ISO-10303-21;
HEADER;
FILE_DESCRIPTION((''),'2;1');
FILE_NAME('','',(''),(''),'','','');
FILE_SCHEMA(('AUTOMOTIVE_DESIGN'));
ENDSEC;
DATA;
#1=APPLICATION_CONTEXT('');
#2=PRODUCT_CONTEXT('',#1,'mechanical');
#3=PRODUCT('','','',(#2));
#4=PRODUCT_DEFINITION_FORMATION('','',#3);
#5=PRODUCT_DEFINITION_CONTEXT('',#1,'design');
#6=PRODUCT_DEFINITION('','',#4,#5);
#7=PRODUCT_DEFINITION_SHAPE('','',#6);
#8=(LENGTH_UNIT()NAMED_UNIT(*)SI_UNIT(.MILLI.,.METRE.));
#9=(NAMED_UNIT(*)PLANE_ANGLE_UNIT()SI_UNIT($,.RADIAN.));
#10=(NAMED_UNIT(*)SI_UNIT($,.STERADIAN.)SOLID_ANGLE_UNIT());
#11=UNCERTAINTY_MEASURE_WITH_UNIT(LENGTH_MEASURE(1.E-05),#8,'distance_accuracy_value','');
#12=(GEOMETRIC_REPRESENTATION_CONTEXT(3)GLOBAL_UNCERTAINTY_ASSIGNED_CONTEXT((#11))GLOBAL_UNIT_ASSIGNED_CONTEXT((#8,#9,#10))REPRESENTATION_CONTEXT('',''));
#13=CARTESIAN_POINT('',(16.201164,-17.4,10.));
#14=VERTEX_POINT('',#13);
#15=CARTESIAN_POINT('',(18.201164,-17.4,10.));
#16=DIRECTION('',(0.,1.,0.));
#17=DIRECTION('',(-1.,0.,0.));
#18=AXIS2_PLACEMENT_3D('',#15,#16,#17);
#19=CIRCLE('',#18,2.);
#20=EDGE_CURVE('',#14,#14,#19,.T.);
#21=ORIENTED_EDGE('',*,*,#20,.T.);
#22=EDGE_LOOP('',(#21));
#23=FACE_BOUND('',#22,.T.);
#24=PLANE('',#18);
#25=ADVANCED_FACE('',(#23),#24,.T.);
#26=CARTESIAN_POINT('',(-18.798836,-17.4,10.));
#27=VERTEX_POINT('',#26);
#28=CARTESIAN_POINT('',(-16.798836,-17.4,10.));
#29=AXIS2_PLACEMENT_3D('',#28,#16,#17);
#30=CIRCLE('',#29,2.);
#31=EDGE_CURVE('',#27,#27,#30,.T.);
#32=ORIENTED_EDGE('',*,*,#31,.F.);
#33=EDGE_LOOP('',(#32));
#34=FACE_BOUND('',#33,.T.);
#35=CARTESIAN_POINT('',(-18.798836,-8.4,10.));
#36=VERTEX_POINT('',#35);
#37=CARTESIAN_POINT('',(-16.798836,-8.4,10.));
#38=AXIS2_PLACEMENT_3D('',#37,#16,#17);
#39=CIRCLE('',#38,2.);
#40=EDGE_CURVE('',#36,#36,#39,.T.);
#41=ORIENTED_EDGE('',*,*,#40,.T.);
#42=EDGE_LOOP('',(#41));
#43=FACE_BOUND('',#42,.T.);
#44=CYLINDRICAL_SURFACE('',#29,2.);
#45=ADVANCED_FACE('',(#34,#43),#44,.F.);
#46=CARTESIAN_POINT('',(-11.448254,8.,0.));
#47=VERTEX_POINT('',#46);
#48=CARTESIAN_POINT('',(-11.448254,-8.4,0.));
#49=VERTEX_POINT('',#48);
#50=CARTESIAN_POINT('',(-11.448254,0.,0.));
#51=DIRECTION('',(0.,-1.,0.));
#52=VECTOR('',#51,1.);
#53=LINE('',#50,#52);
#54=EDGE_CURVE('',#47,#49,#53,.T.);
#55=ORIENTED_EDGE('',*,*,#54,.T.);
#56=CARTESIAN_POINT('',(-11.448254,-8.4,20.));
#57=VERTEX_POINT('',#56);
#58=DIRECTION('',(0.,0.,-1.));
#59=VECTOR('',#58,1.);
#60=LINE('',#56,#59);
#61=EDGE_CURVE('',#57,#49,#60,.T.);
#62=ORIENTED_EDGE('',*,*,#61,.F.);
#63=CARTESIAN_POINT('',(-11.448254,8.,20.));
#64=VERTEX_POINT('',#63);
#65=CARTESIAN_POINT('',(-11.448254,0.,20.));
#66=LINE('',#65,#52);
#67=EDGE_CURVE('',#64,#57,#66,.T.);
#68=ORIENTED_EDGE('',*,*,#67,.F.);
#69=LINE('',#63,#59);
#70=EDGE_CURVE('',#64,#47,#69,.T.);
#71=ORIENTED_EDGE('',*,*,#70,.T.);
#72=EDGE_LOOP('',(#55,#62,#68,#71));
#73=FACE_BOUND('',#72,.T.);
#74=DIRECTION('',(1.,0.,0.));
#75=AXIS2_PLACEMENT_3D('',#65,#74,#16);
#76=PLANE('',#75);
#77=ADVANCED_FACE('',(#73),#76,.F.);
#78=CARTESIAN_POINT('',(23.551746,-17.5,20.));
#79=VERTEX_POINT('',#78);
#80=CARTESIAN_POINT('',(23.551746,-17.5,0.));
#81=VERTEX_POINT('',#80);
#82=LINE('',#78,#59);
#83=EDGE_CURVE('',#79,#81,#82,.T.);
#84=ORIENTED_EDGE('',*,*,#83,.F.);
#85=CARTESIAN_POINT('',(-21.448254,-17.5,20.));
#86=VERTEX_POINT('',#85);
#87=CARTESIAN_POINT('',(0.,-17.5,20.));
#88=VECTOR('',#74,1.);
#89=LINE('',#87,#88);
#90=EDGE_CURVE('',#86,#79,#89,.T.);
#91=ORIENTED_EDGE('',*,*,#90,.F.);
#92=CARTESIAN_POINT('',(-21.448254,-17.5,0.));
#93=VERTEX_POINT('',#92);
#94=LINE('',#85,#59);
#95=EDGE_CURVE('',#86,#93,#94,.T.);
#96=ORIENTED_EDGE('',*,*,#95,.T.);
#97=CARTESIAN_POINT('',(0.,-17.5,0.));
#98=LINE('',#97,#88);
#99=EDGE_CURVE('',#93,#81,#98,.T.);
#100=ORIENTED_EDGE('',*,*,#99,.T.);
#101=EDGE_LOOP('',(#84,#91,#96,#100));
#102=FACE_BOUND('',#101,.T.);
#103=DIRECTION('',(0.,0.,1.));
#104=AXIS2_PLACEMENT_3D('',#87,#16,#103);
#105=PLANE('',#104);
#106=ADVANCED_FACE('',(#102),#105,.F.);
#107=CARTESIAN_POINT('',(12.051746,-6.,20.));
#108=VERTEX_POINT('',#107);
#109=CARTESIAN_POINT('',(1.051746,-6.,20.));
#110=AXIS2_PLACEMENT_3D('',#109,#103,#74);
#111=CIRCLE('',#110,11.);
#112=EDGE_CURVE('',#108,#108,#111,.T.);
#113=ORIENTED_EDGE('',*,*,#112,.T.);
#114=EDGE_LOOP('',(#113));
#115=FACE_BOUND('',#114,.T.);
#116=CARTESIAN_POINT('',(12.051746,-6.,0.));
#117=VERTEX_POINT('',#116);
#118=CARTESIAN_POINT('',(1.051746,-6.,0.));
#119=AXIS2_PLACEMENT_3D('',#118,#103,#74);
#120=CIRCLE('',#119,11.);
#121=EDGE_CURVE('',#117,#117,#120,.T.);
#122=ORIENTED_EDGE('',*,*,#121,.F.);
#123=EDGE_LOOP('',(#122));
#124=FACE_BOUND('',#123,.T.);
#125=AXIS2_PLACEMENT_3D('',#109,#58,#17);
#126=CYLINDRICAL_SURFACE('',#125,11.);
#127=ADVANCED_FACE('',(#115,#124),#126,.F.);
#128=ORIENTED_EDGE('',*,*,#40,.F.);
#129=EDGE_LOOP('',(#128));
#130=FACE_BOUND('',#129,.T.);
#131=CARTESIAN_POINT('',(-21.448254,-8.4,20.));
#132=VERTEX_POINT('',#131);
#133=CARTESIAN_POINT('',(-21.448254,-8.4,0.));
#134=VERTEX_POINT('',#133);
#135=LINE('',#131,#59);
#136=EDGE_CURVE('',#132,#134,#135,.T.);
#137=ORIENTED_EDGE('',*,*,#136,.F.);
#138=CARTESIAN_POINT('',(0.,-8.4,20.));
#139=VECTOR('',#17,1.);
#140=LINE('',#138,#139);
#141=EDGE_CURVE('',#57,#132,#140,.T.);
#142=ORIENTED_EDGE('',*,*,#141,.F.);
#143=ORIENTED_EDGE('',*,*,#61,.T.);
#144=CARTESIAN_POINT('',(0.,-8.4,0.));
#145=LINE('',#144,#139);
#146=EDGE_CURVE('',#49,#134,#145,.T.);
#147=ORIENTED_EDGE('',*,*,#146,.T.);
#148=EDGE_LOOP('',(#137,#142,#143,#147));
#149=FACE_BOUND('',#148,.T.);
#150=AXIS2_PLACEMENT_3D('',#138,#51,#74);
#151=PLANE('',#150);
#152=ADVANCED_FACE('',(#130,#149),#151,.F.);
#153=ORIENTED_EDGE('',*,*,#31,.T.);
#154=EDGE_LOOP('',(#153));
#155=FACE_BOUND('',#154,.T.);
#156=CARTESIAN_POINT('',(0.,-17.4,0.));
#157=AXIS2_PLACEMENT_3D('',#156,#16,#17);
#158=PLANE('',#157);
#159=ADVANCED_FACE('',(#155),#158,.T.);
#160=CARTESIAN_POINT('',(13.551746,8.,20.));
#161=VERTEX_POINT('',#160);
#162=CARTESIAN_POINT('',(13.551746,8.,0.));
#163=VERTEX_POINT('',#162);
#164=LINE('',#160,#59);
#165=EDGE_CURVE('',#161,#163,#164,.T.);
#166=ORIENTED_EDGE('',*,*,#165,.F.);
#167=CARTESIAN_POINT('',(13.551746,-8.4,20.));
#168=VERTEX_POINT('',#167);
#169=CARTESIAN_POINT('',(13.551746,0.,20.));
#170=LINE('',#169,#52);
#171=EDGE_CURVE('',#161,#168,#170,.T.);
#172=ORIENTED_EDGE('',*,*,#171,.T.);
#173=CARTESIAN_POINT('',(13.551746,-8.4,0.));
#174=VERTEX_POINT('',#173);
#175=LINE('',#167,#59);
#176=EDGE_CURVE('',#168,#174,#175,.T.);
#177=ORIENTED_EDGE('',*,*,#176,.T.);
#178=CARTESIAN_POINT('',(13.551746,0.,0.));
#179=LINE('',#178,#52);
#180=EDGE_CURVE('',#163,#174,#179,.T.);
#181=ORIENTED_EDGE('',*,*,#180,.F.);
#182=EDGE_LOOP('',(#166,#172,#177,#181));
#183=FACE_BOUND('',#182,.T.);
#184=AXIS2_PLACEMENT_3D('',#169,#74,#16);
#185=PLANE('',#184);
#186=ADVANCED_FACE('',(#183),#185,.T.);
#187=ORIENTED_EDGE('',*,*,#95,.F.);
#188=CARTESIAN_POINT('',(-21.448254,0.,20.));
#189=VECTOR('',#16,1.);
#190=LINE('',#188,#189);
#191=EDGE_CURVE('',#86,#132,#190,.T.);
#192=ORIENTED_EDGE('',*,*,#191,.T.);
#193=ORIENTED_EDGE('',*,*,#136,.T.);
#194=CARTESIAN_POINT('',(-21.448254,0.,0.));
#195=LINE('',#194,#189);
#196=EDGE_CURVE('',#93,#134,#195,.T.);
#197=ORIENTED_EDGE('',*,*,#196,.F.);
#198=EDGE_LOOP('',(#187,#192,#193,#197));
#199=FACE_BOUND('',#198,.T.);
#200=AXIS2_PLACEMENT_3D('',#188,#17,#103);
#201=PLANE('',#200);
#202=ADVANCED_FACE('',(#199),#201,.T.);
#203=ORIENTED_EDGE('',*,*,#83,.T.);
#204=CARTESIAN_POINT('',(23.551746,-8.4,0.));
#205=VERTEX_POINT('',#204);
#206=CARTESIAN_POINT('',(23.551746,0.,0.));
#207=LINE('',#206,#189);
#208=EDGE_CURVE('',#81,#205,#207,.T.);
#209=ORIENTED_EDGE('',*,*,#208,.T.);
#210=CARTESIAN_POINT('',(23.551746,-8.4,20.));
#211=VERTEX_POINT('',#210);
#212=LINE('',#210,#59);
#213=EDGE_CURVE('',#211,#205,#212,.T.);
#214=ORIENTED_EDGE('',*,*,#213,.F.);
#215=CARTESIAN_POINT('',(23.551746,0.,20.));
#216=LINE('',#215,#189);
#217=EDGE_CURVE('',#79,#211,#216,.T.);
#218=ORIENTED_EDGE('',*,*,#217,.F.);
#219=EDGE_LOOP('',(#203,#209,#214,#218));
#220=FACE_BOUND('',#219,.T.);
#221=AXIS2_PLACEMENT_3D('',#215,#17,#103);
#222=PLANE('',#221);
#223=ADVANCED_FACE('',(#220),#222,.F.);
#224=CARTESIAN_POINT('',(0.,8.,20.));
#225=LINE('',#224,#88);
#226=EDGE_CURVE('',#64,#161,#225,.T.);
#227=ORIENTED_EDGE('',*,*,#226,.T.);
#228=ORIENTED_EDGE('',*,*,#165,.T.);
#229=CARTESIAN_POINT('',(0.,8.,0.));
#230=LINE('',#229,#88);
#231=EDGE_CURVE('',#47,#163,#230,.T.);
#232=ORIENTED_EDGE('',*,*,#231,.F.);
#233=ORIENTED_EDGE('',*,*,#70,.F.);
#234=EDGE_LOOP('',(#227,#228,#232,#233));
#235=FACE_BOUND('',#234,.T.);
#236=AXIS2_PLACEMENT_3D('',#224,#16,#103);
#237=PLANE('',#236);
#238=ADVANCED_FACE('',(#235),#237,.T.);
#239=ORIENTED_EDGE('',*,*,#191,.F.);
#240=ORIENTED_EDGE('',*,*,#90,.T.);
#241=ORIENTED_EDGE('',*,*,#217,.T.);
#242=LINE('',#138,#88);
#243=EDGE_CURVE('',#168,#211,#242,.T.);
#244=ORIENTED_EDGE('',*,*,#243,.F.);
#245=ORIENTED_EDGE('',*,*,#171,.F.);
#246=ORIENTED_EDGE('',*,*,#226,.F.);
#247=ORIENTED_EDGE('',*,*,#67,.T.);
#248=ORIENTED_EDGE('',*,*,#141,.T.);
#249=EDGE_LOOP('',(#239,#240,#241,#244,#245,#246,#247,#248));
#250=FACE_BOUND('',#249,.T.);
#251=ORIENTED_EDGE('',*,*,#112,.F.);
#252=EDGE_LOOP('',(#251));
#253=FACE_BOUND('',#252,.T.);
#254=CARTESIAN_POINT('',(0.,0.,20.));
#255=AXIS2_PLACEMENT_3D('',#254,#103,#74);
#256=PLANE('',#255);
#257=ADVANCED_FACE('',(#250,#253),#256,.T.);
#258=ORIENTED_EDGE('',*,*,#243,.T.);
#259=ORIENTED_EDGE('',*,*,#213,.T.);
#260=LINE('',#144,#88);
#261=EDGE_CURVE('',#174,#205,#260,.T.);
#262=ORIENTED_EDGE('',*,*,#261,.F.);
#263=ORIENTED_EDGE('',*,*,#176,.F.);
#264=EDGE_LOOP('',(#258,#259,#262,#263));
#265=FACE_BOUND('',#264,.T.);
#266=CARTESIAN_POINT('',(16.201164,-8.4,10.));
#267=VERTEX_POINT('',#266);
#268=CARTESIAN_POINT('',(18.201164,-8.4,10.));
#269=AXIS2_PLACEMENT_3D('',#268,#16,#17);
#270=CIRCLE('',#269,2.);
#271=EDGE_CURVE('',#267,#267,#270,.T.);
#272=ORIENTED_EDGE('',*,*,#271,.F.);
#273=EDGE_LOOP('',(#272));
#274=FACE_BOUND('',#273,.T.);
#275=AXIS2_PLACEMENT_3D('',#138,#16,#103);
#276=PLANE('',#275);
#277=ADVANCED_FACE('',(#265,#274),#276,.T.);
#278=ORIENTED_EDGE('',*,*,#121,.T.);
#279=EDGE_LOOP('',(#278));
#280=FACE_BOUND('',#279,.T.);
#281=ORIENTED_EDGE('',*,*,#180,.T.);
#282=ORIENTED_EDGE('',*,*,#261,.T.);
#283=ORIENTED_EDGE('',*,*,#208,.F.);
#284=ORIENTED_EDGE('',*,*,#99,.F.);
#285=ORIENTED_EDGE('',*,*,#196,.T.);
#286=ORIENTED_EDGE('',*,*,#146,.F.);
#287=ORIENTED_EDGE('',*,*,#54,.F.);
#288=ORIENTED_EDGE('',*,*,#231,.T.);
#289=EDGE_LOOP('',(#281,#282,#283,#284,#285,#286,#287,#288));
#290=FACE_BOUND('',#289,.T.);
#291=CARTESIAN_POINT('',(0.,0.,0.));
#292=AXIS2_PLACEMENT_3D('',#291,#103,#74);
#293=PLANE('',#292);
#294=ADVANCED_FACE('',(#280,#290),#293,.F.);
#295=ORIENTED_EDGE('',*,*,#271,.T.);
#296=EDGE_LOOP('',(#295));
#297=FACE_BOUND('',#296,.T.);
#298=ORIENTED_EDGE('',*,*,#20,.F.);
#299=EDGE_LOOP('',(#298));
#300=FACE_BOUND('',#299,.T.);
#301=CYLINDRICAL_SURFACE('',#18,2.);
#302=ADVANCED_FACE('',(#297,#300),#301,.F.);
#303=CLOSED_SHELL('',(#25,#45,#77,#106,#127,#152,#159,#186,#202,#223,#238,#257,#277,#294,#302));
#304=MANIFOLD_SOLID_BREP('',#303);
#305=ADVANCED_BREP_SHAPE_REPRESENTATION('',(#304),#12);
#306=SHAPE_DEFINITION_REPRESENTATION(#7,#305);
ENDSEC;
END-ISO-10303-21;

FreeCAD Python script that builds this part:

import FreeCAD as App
import Part
import Sketcher
from FreeCAD import Vector
Q = App.Units.Quantity

doc = App.newDocument("Part")
params = doc.addObject("Spreadsheet::Sheet", "Params")
for row, (alias, value) in enumerate([
    ("sketch1_diameter", "22 mm"),
    ("sketch1_width", "10 mm"),
    ("sketch1_width2", "45 mm"),
    ("sketch1_height", "16.4 mm"),
    ("sketch1_height2", "9.1 mm"),
    ("pad1_length", "20 mm"),
    ("sketch2_diameter", "4 mm"),
    ("pocket1_length", "9 mm"),
], start=1):
    params.set(f"A{row}", alias)
    params.set(f"B{row}", "=" + value)
    params.setAlias(f"B{row}", alias)

body = doc.addObject("PartDesign::Body", "Body")

# Sketch on XY plane
sketch1 = doc.addObject("Sketcher::SketchObject", "Sketch")
body.addObject(sketch1)
sketch1.AttachmentSupport = (doc.XY_Plane, [""])
sketch1.MapMode = "FlatFace"
sketch1.addGeometry(Part.LineSegment(Vector(-11.448254, 8, 0), Vector(-11.448254, -8.4, 0)), False)
sketch1.addGeometry(Part.LineSegment(Vector(-11.448254, -8.4, 0), Vector(-21.448254, -8.4, 0)), False)
sketch1.addGeometry(Part.LineSegment(Vector(-21.448254, -8.4, 0), Vector(-21.448254, -17.5, 0)), False)
sketch1.addGeometry(Part.LineSegment(Vector(-21.448254, -17.5, 0), Vector(23.551746, -17.5, 0)), False)
sketch1.addGeometry(Part.LineSegment(Vector(23.551746, -17.5, 0), Vector(23.551746, -8.4, 0)), False)
sketch1.addGeometry(Part.LineSegment(Vector(23.551746, -8.4, 0), Vector(13.551746, -8.4, 0)), False)
sketch1.addGeometry(Part.LineSegment(Vector(13.551746, -8.4, 0), Vector(13.551746, 8, 0)), False)
sketch1.addGeometry(Part.LineSegment(Vector(13.551746, 8, 0), Vector(-11.448254, 8, 0)), False)
sketch1.addGeometry(Part.Circle(Vector(1.051746, -6, 0), Vector(0, 0, 1), 11), False)
sketch1.addConstraint(Sketcher.Constraint("Coincident", 0, 2, 1, 1))
sketch1.addConstraint(Sketcher.Constraint("Coincident", 1, 2, 2, 1))
sketch1.addConstraint(Sketcher.Constraint("Coincident", 2, 2, 3, 1))
sketch1.addConstraint(Sketcher.Constraint("Coincident", 3, 2, 4, 1))
sketch1.addConstraint(Sketcher.Constraint("Coincident", 4, 2, 5, 1))
sketch1.addConstraint(Sketcher.Constraint("Coincident", 5, 2, 6, 1))
sketch1.addConstraint(Sketcher.Constraint("Coincident", 6, 2, 7, 1))
sketch1.addConstraint(Sketcher.Constraint("Coincident", 7, 2, 0, 1))
sketch1.addConstraint(Sketcher.Constraint("Vertical", 0))
sketch1.addConstraint(Sketcher.Constraint("Horizontal", 1))
sketch1.addConstraint(Sketcher.Constraint("Vertical", 2))
sketch1.addConstraint(Sketcher.Constraint("Horizontal", 3))
sketch1.addConstraint(Sketcher.Constraint("Vertical", 4))
sketch1.addConstraint(Sketcher.Constraint("Horizontal", 5))
sketch1.addConstraint(Sketcher.Constraint("Vertical", 6))
sketch1.addConstraint(Sketcher.Constraint("Horizontal", 7))
sketch1.addConstraint(Sketcher.Constraint("Horizontal", 1, 2, 4, 2))
sketch1.addConstraint(Sketcher.Constraint("Equal", 1, 5))
sketch1.addConstraint(Sketcher.Constraint("Diameter", 8, Q("22 mm")))
sketch1.addConstraint(Sketcher.Constraint("DistanceX", 1, 2, 1, 1, Q("10 mm")))
sketch1.addConstraint(Sketcher.Constraint("DistanceX", 3, 1, 3, 2, Q("45 mm")))
sketch1.addConstraint(Sketcher.Constraint("DistanceY", 0, 2, 0, 1, Q("16.4 mm")))
sketch1.addConstraint(Sketcher.Constraint("DistanceY", 2, 2, 2, 1, Q("9.1 mm")))
sketch1.addConstraint(Sketcher.Constraint("DistanceY", 8, 3, -1, 1, Q("6 mm")))
sketch1.addConstraint(Sketcher.Constraint("DistanceY", -1, 1, 6, 2, Q("8 mm")))
sketch1.addConstraint(Sketcher.Constraint("DistanceX", 0, 2, 8, 3, Q("12.5 mm")))
sketch1.addConstraint(Sketcher.Constraint("DistanceX", -1, 1, 8, 3, Q("1.051746 mm")))
sketch1.setExpression("Constraints[18]", "Params.sketch1_diameter")
sketch1.setExpression("Constraints[19]", "Params.sketch1_width")
sketch1.setExpression("Constraints[20]", "Params.sketch1_width2")
sketch1.setExpression("Constraints[21]", "Params.sketch1_height")
sketch1.setExpression("Constraints[22]", "Params.sketch1_height2")
pad1 = doc.addObject("PartDesign::Pad", "Pad")
body.addObject(pad1)
pad1.Profile = sketch1
pad1.setExpression("Length", "Params.pad1_length")

# Sketch on XZ plane
sketch2 = doc.addObject("Sketcher::SketchObject", "Sketch001")
body.addObject(sketch2)
sketch2.AttachmentSupport = (doc.XZ_Plane, [""])
sketch2.MapMode = "FlatFace"
sketch2.AttachmentOffset = App.Placement(Vector(0, 0, 8.4), App.Rotation())
sketch2.addGeometry(Part.Circle(Vector(-16.798836, 10, 0), Vector(0, 0, 1), 2), False)
sketch2.addGeometry(Part.Circle(Vector(18.201164, 10, 0), Vector(0, 0, 1), 2), False)
sketch2.addConstraint(Sketcher.Constraint("Equal", 0, 1))
sketch2.addConstraint(Sketcher.Constraint("Horizontal", 0, 3, 1, 3))
sketch2.addConstraint(Sketcher.Constraint("Diameter", 0, Q("4 mm")))
sketch2.addConstraint(Sketcher.Constraint("DistanceY", -1, 1, 0, 3, Q("10 mm")))
sketch2.addConstraint(Sketcher.Constraint("DistanceX", 0, 3, 1, 3, Q("35 mm")))
sketch2.addConstraint(Sketcher.Constraint("DistanceX", 0, 3, -1, 1, Q("16.798836 mm")))
sketch2.setExpression("Constraints[2]", "Params.sketch2_diameter")
pocket1 = doc.addObject("PartDesign::Pocket", "Pocket")
body.addObject(pocket1)
pocket1.Profile = sketch2
pocket1.setExpression("Length", "Params.pocket1_length")
pocket1.Reversed = True

doc.recompute()
